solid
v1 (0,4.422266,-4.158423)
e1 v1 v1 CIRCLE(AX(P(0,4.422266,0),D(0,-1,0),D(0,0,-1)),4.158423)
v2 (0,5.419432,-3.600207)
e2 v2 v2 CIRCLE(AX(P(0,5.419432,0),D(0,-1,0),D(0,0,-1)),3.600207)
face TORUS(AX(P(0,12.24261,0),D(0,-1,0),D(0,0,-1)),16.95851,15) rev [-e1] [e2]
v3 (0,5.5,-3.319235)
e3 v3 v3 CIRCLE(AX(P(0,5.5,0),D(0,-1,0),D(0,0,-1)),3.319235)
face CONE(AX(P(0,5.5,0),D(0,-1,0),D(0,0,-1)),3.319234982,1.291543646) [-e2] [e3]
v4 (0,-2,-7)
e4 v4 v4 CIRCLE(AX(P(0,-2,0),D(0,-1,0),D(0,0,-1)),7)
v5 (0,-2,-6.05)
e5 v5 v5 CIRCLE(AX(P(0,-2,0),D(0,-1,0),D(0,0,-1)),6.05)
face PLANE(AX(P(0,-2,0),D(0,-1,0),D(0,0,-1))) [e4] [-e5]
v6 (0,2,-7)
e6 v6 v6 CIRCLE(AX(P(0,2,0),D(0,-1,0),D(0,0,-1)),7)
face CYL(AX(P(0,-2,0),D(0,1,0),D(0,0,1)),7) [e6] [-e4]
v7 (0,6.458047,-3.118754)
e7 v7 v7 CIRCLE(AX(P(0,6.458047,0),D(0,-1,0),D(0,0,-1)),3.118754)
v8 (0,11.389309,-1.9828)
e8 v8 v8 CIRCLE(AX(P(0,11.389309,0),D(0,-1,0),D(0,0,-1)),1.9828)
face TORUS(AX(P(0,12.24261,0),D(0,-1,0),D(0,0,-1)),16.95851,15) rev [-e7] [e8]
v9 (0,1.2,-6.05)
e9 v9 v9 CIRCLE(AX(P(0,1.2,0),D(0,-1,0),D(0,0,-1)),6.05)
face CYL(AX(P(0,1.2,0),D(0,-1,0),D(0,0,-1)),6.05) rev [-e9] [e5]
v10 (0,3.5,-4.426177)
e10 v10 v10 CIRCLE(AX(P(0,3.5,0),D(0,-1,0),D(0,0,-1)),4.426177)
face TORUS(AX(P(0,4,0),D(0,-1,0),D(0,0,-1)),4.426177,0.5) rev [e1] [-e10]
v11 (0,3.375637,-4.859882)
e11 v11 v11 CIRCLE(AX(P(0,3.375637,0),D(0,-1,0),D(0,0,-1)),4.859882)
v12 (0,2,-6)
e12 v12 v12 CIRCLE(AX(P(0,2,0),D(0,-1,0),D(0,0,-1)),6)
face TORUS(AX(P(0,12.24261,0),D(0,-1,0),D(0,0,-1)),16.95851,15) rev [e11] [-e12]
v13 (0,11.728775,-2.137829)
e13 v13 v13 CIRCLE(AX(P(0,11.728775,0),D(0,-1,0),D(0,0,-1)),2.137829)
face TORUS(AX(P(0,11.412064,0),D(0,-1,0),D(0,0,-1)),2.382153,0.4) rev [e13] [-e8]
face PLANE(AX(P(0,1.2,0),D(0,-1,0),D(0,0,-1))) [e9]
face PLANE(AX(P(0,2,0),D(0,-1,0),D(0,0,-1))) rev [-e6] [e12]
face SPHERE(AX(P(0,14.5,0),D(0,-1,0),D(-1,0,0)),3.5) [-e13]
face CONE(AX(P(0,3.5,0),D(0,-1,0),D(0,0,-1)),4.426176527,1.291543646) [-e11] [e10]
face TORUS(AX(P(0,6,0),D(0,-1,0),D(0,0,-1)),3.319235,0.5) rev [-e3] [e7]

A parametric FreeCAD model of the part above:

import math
import FreeCAD as App
import Part
import Sketcher

V = App.Vector
Q = App.Units.Quantity

doc = App.newDocument("Part")
body = doc.addObject("PartDesign::Body", "Body")

# Sketch on XY plane
sketch1 = doc.addObject("Sketcher::SketchObject", "Sketch")
body.addObject(sketch1)
sketch1.AttachmentSupport = (doc.XY_Plane, [""])
sketch1.MapMode = "FlatFace"
sketch1.addGeometry(Part.LineSegment(V(-6, 0, 0), V(0, 0, 0)), False)
sketch1.addGeometry(Part.LineSegment(V(0, 0, 0), V(0, 18, 0)), False)
sketch1.addGeometry(Part.ArcOfCircle(Part.Circle(V(0, 14.5, 0), V(0, 0, 1), 3.5), math.radians(90), math.radians(232)), False)
sketch1.addGeometry(Part.ArcOfCircle(Part.Circle(V(-2.38, 11.41, 0), V(0, 0, 1), 0.4), math.radians(-3), math.radians(52)), False)
sketch1.addGeometry(Part.ArcOfCircle(Part.Circle(V(-16.96, 12.24, 0), V(0, 0, 1), 15), math.radians(-22.68), math.radians(-3.26)), False)
sketch1.addGeometry(Part.ArcOfCircle(Part.Circle(V(-3.32, 6, 0), V(0, 0, 1), 0.5), math.radians(-90), math.radians(66)), False)
sketch1.addGeometry(Part.LineSegment(V(-3.32, 5.5, 0), V(-3.6, 5.42, 0)), False)
sketch1.addGeometry(Part.ArcOfCircle(Part.Circle(V(-16.96, 12.24, 0), V(0, 0, 1), 15), math.radians(-31.42), math.radians(-27.06)), False)
sketch1.addGeometry(Part.ArcOfCircle(Part.Circle(V(-4.43, 4, 0), V(0, 0, 1), 0.5), math.radians(-90), math.radians(58)), False)
sketch1.addGeometry(Part.LineSegment(V(-4.43, 3.5, 0), V(-4.86, 3.38, 0)), False)
sketch1.addGeometry(Part.ArcOfCircle(Part.Circle(V(-16.96, 12.24, 0), V(0, 0, 1), 15), math.radians(-43.07), math.radians(-36.24)), False)
sketch1.addGeometry(Part.LineSegment(V(-6, 2, 0), V(-6, 0, 0)), False)
sketch1.addConstraint(Sketcher.Constraint("Coincident", 0, 2, 1, 1))
sketch1.addConstraint(Sketcher.Constraint("Coincident", 1, 2, 2, 1))
sketch1.addConstraint(Sketcher.Constraint("Tangent", 2, 2, 3, 2))
sketch1.addConstraint(Sketcher.Constraint("Tangent", 3, 1, 4, 2))
sketch1.addConstraint(Sketcher.Constraint("Coincident", 4, 1, 5, 2))
sketch1.addConstraint(Sketcher.Constraint("Coincident", 5, 1, 6, 1))
sketch1.addConstraint(Sketcher.Constraint("Coincident", 6, 2, 7, 2))
sketch1.addConstraint(Sketcher.Constraint("Coincident", 7, 1, 8, 2))
sketch1.addConstraint(Sketcher.Constraint("Coincident", 8, 1, 9, 1))
sketch1.addConstraint(Sketcher.Constraint("Coincident", 9, 2, 10, 2))
sketch1.addConstraint(Sketcher.Constraint("Coincident", 10, 1, 11, 1))
sketch1.addConstraint(Sketcher.Constraint("Coincident", 11, 2, 0, 1))
sketch1.addConstraint(Sketcher.Constraint("Horizontal", 0))
sketch1.addConstraint(Sketcher.Constraint("Vertical", 1))
sketch1.addConstraint(Sketcher.Constraint("Vertical", 11))
sketch1.addConstraint(Sketcher.Constraint("Coincident", 0, 2, -1, 1))
sketch1.addConstraint(Sketcher.Constraint("Coincident", 7, 3, 4, 3))
sketch1.addConstraint(Sketcher.Constraint("Coincident", 10, 3, 4, 3))
sketch1.addConstraint(Sketcher.Constraint("Equal", 4, 7))
sketch1.addConstraint(Sketcher.Constraint("Equal", 5, 8))
sketch1.addConstraint(Sketcher.Constraint("Equal", 7, 10))
sketch1.addConstraint(Sketcher.Constraint("PointOnObject", 2, 3, -2))
sketch1.addConstraint(Sketcher.Constraint("Parallel", 6, 9))
sketch1.addConstraint(Sketcher.Constraint("Radius", 4, Q("15 mm")))
sketch1.addConstraint(Sketcher.Constraint("Radius", 2, Q("3.5 mm")))
sketch1.addConstraint(Sketcher.Constraint("Radius", 3, Q("0.4 mm")))
sketch1.addConstraint(Sketcher.Constraint("Radius", 5, Q("0.5 mm")))
sketch1.addConstraint(Sketcher.Constraint("DistanceX", 0, 1, 0, 2, Q("6 mm")))
sketch1.addConstraint(Sketcher.Constraint("DistanceY", 1, 1, 1, 2, Q("18 mm")))
sketch1.addConstraint(Sketcher.Constraint("DistanceY", 11, 2, 11, 1, Q("2 mm")))
sketch1.addConstraint(Sketcher.Constraint("Angle", 6, Q("-164 deg")))
sketch1.addConstraint(Sketcher.Constraint("DistanceY", -1, 1, 5, 3, Q("6 mm")))
sketch1.addConstraint(Sketcher.Constraint("DistanceY", -1, 1, 8, 3, Q("4 mm")))
sketch1.addConstraint(Sketcher.Constraint("DistanceX", 3, 1, -1, 1, Q("1.9828 mm")))
sketch1.addConstraint(Sketcher.Constraint("DistanceX", 4, 1, 3, 3, Q("0.736602 mm")))
sketch1.addConstraint(Sketcher.Constraint("DistanceX", 8, 3, 5, 3, Q("1.106942 mm")))
sketch1.addConstraint(Sketcher.Constraint("DistanceX", 5, 1, 4, 1, Q("0.200481 mm")))
sketch1.addConstraint(Sketcher.Constraint("DistanceX", 8, 1, 6, 2, Q("0.825969 mm")))
revolution = doc.addObject("PartDesign::Revolution", "Revolution")
body.addObject(revolution)
revolution.Profile = sketch1
revolution.ReferenceAxis = (sketch1, ["V_Axis"])
revolution.Angle = 360

# Sketch on XZ plane
sketch2 = doc.addObject("Sketcher::SketchObject", "Sketch001")
body.addObject(sketch2)
sketch2.AttachmentSupport = (doc.XZ_Plane, [""])
sketch2.MapMode = "FlatFace"
sketch2.addGeometry(Part.Circle(V(0, 0, 0), V(0, 0, 1), 7), False)
sketch2.addConstraint(Sketcher.Constraint("Coincident", 0, 3, -1, 1))
sketch2.addConstraint(Sketcher.Constraint("Diameter", 0, Q("14 mm")))
pad1 = doc.addObject("PartDesign::Pad", "Pad")
body.addObject(pad1)
pad1.Profile = sketch2
pad1.Length = 2

# Sketch on XZ plane
sketch3 = doc.addObject("Sketcher::SketchObject", "Sketch002")
body.addObject(sketch3)
sketch3.AttachmentSupport = (doc.XZ_Plane, [""])
sketch3.MapMode = "FlatFace"
sketch3.addGeometry(Part.Circle(V(0, 0, 0), V(0, 0, 1), 7), False)
sketch3.addConstraint(Sketcher.Constraint("Coincident", 0, 3, -1, 1))
sketch3.addConstraint(Sketcher.Constraint("Diameter", 0, Q("14 mm")))
pad2 = doc.addObject("PartDesign::Pad", "Pad001")
body.addObject(pad2)
pad2.Profile = sketch3
pad2.Length = 2
pad2.Reversed = True

# Sketch on XZ plane
sketch4 = doc.addObject("Sketcher::SketchObject", "Sketch003")
body.addObject(sketch4)
sketch4.AttachmentSupport = (doc.XZ_Plane, [""])
sketch4.MapMode = "FlatFace"
sketch4.AttachmentOffset = App.Placement(V(0, 0, 2), App.Rotation())
sketch4.addGeometry(Part.Circle(V(0, 0, 0), V(0, 0, 1), 6), False)
sketch4.addConstraint(Sketcher.Constraint("Coincident", 0, 3, -1, 1))
sketch4.addConstraint(Sketcher.Constraint("Diameter", 0, Q("12.1 mm")))
pocket1 = doc.addObject("PartDesign::Pocket", "Pocket")
body.addObject(pocket1)
pocket1.Profile = sketch4
pocket1.Length = 3.2

doc.recompute()
